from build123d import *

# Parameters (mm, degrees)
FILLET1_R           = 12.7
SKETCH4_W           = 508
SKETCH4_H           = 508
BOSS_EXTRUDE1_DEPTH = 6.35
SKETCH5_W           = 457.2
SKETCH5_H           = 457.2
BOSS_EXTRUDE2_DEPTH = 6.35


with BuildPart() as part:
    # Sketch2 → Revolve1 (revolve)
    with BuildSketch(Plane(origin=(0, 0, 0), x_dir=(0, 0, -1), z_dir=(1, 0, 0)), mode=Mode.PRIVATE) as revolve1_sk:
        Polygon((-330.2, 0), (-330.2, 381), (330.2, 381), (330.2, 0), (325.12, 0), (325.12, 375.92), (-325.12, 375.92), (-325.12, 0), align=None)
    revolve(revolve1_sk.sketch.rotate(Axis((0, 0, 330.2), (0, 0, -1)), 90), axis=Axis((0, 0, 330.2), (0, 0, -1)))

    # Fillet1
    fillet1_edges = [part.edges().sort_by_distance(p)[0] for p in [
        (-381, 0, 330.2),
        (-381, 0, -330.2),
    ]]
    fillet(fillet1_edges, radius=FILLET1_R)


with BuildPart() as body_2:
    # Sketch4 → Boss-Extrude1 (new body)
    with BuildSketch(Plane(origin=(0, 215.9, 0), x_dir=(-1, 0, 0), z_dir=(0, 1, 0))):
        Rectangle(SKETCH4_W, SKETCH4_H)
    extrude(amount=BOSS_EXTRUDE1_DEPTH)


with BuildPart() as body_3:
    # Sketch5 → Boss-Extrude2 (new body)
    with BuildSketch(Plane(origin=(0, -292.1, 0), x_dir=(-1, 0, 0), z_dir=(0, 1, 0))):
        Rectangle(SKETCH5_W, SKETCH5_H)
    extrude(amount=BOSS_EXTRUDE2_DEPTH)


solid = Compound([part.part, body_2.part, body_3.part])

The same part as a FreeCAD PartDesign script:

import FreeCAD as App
import Part
import Sketcher

V = App.Vector
Q = App.Units.Quantity


def edges_at(feature, points):
    """Names of the edges that pass closest to the given points."""
    edges = feature.Shape.Edges
    near = lambda p: min(range(len(edges)), key=lambda i: edges[i].distToShape(Part.Vertex(*p))[0])
    return sorted({f"Edge{near(p) + 1}" for p in points})


def add_polygon(sketch, points):
    """Adds a closed chain of lines whose ends are joined by coincident constraints."""
    first, n = sketch.GeometryCount, len(points)
    for a, b in zip(points, points[1:] + points[:1]):
        sketch.addGeometry(Part.LineSegment(App.Vector(*a, 0), App.Vector(*b, 0)), False)
    for i in range(n):
        sketch.addConstraint(Sketcher.Constraint("Coincident", first + i, 2, first + (i + 1) % n, 1))

doc = App.newDocument("Part")
params = doc.addObject("Spreadsheet::Sheet", "Params")
for row, (alias, value) in enumerate([
    ("sketch1_width", "15 in"),
    ("sketch1_height", "26 in"),
    ("sketch1_width2", "14.8 in"),
    ("sketch1_height2", "0.2 in"),
    ("revolution_angle", "360 deg"),
    ("fillet_radius", "0.5 in"),
    ("sketch2_width", "20 in"),
    ("pad1_length", "0.25 in"),
    ("sketch3_width", "18 in"),
    ("pad2_length", "0.25 in"),
], start=1):
    params.set(f"A{row}", alias)
    params.set(f"B{row}", "=" + value)
    params.setAlias(f"B{row}", alias)

body = doc.addObject("PartDesign::Body", "Body")

# Sketch on YZ plane
sketch1 = body.newObject("Sketcher::SketchObject", "Sketch")
sketch1.AttachmentSupport = (doc.getObject("YZ_Plane"), [""])
sketch1.MapMode = "FlatFace"
add_polygon(sketch1, [(381, 330), (0, 330), (0, 325), (376, 325), (376, -325), (0, -325), (0, -330), (381, -330)])  # lines 0-7
sketch1.addConstraint([
    Sketcher.Constraint("Horizontal", 0),
    Sketcher.Constraint("Vertical", 1),
    Sketcher.Constraint("Horizontal", 2),
    Sketcher.Constraint("Vertical", 3),
    Sketcher.Constraint("Horizontal", 4),
    Sketcher.Constraint("Vertical", 5),
    Sketcher.Constraint("Horizontal", 6),
    Sketcher.Constraint("Vertical", 7),
    Sketcher.Constraint("Symmetric", 1, 2, 4, 2, -1, 1),
    Sketcher.Constraint("Symmetric", 0, 2, 5, 2, -1),
    Sketcher.Constraint("DistanceX", 0, 2, 0, 1, Q("15 in")),
    Sketcher.Constraint("DistanceY", 7, 1, 7, 2, Q("26 in")),
    Sketcher.Constraint("DistanceX", 2, 1, 2, 2, Q("14.8 in")),
    Sketcher.Constraint("DistanceY", 1, 2, 1, 1, Q("0.2 in")),
])
sketch1.setExpression("Constraints[18]", "Params.sketch1_width")
sketch1.setExpression("Constraints[19]", "Params.sketch1_height")
sketch1.setExpression("Constraints[20]", "Params.sketch1_width2")
sketch1.setExpression("Constraints[21]", "Params.sketch1_height2")
revolution = body.newObject("PartDesign::Revolution", "Revolution")
revolution.Profile = sketch1
revolution.ReferenceAxis = (sketch1, ["V_Axis"])
revolution.setExpression("Angle", "Params.revolution_angle")
doc.recompute()

fillet = body.newObject("PartDesign::Fillet", "Fillet")
fillet.Base = (revolution, edges_at(revolution, [(-381, 0, 330.2), (-381, 0, -330.2)]))
fillet.setExpression("Radius", "Params.fillet_radius")
body2 = doc.addObject("PartDesign::Body", "Body001")

# Sketch on XZ plane
sketch2 = body2.newObject("Sketcher::SketchObject", "Sketch001")
sketch2.AttachmentSupport = (doc.getObject("XZ_Plane001"), [""])
sketch2.MapMode = "FlatFace"
sketch2.AttachmentOffset = App.Placement(V(0, 0, -8.5 * 25.4), App.Rotation())
add_polygon(sketch2, [(254, 254), (254, -254), (-254, -254), (-254, 254)])  # lines 0-3
sketch2.addConstraint([
    Sketcher.Constraint("Vertical", 0),
    Sketcher.Constraint("Horizontal", 1),
    Sketcher.Constraint("Vertical", 2),
    Sketcher.Constraint("Horizontal", 3),
    Sketcher.Constraint("Symmetric", 0, 2, 2, 2, -1, 1),
    Sketcher.Constraint("Equal", 3, 0),
    Sketcher.Constraint("DistanceX", 1, 2, 1, 1, Q("20 in")),
])
sketch2.setExpression("Constraints[10]", "Params.sketch2_width")
pad1 = body2.newObject("PartDesign::Pad", "Pad")
pad1.Profile = sketch2
pad1.setExpression("Length", "Params.pad1_length")
pad1.Reversed = True
body3 = doc.addObject("PartDesign::Body", "Body002")

# Sketch on XZ plane
sketch3 = body3.newObject("Sketcher::SketchObject", "Sketch002")
sketch3.AttachmentSupport = (doc.getObject("XZ_Plane002"), [""])
sketch3.MapMode = "FlatFace"
sketch3.AttachmentOffset = App.Placement(V(0, 0, 11.5 * 25.4), App.Rotation())
add_polygon(sketch3, [(229, 229), (229, -229), (-229, -229), (-229, 229)])  # lines 0-3
sketch3.addConstraint([
    Sketcher.Constraint("Vertical", 0),
    Sketcher.Constraint("Horizontal", 1),
    Sketcher.Constraint("Vertical", 2),
    Sketcher.Constraint("Horizontal", 3),
    Sketcher.Constraint("Symmetric", 0, 2, 2, 2, -1, 1),
    Sketcher.Constraint("Equal", 3, 0),
    Sketcher.Constraint("DistanceX", 1, 2, 1, 1, Q("18 in")),
])
sketch3.setExpression("Constraints[10]", "Params.sketch3_width")
pad2 = body3.newObject("PartDesign::Pad", "Pad001")
pad2.Profile = sketch3
pad2.setExpression("Length", "Params.pad2_length")
pad2.Reversed = True

doc.recompute()
